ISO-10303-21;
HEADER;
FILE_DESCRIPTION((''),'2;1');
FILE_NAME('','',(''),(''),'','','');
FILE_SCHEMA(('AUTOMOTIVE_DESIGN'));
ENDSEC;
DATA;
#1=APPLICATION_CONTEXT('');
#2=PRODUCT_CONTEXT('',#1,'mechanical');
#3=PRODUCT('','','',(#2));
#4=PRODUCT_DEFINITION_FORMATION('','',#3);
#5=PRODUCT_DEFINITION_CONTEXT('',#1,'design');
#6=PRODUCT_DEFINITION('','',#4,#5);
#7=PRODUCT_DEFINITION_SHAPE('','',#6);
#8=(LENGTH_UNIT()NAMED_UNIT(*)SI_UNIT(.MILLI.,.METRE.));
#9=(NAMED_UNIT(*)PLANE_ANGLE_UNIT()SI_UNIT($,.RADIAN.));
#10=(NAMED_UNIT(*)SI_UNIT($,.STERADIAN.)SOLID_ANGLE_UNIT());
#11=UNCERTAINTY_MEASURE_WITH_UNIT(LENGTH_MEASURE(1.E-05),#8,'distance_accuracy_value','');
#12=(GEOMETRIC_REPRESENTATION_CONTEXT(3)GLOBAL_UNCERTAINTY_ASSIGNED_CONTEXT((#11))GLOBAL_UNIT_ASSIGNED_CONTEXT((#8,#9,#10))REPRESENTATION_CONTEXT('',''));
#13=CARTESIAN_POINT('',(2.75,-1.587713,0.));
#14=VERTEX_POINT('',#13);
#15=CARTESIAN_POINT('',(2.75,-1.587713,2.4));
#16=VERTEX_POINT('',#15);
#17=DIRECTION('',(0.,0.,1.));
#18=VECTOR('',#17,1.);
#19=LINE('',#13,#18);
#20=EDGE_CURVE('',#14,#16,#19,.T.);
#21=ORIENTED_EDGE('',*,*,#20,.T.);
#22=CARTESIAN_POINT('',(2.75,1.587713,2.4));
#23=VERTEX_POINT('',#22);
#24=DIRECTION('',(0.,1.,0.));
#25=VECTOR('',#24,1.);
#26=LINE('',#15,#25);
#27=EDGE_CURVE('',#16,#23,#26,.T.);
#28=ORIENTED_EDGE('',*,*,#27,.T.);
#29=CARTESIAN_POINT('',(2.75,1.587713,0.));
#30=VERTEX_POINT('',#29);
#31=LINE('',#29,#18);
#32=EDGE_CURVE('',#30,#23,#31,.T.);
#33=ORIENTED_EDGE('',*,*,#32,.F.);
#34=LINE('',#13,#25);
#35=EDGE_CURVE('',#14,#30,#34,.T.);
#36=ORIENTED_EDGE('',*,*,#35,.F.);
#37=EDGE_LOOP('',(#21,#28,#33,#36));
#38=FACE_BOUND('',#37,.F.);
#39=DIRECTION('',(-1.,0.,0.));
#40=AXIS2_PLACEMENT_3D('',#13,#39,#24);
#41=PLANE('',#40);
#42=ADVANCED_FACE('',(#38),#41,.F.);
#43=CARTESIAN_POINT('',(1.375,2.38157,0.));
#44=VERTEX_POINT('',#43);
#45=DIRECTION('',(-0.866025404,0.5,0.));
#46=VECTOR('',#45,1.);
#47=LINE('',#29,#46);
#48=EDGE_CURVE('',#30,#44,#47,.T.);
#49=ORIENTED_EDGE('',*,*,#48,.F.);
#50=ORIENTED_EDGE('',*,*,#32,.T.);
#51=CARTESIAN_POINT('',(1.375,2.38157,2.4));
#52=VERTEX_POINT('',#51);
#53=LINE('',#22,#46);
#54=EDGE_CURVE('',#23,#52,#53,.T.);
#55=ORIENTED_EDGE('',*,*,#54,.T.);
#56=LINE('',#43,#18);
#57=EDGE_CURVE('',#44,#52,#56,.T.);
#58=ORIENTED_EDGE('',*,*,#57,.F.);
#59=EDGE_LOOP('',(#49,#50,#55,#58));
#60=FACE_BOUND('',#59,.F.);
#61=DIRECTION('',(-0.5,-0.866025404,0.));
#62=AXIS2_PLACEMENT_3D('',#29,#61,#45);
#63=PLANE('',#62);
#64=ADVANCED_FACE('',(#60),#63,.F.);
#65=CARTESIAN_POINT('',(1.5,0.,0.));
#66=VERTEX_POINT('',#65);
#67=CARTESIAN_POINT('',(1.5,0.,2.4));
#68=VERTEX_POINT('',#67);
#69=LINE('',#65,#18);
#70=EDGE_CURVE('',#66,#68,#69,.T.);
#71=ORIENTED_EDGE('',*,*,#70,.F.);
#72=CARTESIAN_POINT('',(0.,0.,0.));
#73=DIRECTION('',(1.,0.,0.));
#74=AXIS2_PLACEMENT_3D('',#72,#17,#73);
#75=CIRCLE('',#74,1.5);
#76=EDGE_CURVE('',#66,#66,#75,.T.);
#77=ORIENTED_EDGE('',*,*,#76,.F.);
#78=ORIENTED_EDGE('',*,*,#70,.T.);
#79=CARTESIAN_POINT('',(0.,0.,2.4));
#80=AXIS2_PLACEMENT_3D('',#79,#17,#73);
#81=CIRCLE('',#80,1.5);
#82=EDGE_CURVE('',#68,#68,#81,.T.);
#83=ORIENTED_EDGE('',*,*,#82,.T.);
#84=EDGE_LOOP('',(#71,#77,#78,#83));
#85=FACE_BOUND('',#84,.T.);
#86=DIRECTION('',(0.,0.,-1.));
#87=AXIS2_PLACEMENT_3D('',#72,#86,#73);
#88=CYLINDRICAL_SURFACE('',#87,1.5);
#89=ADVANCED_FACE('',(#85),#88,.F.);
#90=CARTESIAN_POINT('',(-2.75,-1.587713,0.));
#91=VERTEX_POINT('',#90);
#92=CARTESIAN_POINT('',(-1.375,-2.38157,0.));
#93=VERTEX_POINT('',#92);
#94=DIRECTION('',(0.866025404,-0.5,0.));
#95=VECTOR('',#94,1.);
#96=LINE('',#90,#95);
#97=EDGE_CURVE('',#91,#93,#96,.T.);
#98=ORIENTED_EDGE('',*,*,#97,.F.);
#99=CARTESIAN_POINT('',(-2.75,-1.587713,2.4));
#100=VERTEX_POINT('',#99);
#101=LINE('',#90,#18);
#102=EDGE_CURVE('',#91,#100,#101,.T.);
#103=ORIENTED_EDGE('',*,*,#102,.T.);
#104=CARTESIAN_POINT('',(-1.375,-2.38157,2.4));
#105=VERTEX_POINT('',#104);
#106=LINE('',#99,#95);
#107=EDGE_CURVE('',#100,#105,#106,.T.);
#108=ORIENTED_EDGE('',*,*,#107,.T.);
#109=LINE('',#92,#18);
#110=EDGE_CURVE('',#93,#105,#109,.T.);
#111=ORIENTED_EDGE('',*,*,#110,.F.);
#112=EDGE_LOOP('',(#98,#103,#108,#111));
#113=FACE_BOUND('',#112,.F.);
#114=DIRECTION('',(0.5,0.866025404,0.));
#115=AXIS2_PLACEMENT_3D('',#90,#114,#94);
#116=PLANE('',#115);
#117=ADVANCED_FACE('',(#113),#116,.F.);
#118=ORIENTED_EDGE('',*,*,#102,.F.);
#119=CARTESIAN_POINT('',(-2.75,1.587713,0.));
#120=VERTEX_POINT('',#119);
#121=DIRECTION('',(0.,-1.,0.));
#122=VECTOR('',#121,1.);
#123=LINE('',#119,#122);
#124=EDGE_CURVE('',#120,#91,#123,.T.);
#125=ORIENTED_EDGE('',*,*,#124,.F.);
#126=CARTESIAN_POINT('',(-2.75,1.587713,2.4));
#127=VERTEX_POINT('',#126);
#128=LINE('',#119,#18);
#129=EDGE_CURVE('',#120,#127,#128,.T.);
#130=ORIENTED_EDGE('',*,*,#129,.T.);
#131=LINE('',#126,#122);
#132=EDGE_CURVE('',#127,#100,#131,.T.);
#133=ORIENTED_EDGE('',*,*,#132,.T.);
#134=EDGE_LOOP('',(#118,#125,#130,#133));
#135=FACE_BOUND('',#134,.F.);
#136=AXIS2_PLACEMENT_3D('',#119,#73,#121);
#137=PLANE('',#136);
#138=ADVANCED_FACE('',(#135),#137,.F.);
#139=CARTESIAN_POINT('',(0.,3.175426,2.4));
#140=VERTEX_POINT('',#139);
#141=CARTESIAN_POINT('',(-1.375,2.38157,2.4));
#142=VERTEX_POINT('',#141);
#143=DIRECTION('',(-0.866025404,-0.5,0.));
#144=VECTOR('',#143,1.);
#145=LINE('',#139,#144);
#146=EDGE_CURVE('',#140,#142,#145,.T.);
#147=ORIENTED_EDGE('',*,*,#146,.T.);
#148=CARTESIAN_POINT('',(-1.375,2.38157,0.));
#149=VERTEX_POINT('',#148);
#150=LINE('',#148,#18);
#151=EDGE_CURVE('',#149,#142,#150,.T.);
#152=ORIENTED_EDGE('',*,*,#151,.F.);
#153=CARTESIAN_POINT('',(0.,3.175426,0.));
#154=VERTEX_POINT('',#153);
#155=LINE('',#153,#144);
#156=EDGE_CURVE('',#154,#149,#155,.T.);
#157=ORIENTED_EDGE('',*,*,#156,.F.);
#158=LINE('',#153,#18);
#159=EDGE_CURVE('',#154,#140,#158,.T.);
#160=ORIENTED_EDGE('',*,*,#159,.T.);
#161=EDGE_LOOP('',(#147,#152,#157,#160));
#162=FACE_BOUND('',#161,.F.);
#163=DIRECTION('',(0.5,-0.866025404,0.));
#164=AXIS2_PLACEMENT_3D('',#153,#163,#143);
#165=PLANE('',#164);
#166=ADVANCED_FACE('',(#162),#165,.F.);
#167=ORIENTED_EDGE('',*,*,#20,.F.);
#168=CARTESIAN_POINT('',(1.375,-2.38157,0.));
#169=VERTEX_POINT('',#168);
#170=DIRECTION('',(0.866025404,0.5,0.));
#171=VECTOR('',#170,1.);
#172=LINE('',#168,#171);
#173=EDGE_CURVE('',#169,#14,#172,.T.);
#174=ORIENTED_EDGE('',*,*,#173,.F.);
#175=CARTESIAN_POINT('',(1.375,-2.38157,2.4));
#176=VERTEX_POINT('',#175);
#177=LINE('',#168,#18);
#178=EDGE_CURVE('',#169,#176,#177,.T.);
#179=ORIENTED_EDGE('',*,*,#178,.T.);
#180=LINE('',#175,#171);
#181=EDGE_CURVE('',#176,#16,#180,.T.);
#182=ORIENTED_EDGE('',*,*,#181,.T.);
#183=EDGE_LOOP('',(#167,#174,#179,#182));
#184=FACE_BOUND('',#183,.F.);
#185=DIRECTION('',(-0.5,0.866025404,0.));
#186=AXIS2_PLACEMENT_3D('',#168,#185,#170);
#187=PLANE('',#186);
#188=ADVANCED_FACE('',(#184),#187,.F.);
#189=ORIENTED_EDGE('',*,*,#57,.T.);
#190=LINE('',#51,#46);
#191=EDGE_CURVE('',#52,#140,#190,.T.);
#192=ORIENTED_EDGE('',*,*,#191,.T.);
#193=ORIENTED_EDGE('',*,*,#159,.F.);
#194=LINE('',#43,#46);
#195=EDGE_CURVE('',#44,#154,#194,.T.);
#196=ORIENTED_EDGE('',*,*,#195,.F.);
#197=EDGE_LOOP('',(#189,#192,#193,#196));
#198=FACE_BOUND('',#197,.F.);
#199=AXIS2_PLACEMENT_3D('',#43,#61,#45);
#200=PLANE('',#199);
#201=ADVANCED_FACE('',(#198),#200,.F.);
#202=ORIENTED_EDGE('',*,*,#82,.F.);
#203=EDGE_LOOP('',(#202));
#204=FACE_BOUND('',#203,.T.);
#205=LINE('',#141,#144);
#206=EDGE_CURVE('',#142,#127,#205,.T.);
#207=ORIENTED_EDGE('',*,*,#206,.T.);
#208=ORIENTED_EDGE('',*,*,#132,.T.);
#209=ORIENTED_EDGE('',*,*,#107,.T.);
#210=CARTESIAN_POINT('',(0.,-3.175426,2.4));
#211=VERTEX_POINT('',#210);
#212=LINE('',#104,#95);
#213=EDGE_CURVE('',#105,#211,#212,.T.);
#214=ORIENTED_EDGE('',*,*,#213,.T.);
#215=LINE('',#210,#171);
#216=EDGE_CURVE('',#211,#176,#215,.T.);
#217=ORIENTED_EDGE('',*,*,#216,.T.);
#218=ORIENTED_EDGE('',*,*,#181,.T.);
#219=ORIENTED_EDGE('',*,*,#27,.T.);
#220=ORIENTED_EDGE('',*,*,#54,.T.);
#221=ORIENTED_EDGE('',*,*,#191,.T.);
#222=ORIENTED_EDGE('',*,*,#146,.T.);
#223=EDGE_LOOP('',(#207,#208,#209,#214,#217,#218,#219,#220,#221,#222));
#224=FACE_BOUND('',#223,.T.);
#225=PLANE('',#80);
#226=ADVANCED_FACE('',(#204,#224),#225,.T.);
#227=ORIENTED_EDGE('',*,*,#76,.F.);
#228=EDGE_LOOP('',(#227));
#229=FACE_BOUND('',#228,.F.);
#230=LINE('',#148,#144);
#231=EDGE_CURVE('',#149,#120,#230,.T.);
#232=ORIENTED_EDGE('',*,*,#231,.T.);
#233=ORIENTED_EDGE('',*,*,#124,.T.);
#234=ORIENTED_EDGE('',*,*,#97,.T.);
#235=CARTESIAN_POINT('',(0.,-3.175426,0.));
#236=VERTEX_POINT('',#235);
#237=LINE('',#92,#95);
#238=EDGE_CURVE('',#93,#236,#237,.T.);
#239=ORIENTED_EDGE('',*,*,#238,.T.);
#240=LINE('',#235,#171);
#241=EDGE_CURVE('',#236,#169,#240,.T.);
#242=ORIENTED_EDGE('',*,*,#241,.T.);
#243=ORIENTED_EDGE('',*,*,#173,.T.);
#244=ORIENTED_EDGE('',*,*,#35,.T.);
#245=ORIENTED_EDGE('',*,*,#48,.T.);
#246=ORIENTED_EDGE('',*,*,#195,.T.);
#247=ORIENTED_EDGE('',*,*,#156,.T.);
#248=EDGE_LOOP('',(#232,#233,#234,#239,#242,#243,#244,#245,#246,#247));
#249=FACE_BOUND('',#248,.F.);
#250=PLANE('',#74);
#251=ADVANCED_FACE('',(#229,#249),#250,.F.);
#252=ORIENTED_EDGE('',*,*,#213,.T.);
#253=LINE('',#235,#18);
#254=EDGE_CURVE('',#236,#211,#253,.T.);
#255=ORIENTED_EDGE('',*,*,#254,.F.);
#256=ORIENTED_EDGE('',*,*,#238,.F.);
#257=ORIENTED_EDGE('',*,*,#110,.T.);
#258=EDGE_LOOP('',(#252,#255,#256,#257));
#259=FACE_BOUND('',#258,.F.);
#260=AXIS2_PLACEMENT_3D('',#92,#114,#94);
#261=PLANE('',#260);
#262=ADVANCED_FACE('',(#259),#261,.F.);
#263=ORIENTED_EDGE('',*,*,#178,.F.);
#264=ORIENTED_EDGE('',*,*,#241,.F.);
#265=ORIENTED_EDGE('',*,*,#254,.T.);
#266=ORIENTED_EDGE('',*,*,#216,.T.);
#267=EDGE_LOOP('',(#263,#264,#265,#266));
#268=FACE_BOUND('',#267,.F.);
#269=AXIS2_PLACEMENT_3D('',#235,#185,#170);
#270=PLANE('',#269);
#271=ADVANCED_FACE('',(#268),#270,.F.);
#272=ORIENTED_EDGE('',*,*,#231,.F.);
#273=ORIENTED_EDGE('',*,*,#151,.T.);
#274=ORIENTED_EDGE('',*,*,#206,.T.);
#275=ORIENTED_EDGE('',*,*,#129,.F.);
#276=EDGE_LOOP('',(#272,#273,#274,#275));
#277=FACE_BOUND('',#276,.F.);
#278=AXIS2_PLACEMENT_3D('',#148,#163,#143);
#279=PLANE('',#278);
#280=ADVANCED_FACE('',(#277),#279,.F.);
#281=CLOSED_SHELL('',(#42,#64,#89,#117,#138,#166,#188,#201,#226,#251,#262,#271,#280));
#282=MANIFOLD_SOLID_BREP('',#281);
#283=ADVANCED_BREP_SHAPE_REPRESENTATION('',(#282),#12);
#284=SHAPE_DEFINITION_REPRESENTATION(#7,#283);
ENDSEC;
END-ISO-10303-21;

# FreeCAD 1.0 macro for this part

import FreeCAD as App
import Part
import Sketcher

V = App.Vector
Q = App.Units.Quantity

doc = App.newDocument("Part")
params = doc.addObject("Spreadsheet::Sheet", "Params")
for row, (alias, value) in enumerate([
    ("sketch1_diameter", "3 mm"),
    ("pad1_length", "2.4 mm"),
], start=1):
    params.set(f"A{row}", alias)
    params.set(f"B{row}", "=" + value)
    params.setAlias(f"B{row}", alias)

body = doc.addObject("PartDesign::Body", "Body")

sketch1 = body.newObject("Sketcher::SketchObject", "Sketch")
sketch1.AttachmentSupport = (doc.getObject("XY_Plane"), [""])
sketch1.MapMode = "FlatFace"
sketch1.addGeometry(Part.LineSegment(V(1.375, -2.38157, 0), V(2.75, -1.587713, 0)), False)
sketch1.addGeometry(Part.LineSegment(V(2.75, -1.587713, 0), V(2.75, 1.587713, 0)), False)
sketch1.addGeometry(Part.LineSegment(V(2.75, 1.587713, 0), V(1.375, 2.38157, 0)), False)
sketch1.addGeometry(Part.LineSegment(V(1.375, 2.38157, 0), V(0, 3.175426, 0)), False)
sketch1.addGeometry(Part.LineSegment(V(0, 3.175426, 0), V(-1.375, 2.38157, 0)), False)
sketch1.addGeometry(Part.LineSegment(V(-1.375, 2.38157, 0), V(-2.75, 1.587713, 0)), False)
sketch1.addGeometry(Part.LineSegment(V(-2.75, 1.587713, 0), V(-2.75, -1.587713, 0)), False)
sketch1.addGeometry(Part.LineSegment(V(-2.75, -1.587713, 0), V(-1.375, -2.38157, 0)), False)
sketch1.addGeometry(Part.LineSegment(V(-1.375, -2.38157, 0), V(0, -3.175426, 0)), False)
sketch1.addGeometry(Part.LineSegment(V(0, -3.175426, 0), V(1.375, -2.38157, 0)), False)
sketch1.addGeometry(Part.Circle(V(0, 0, 0), V(0, 0, 1), 1.5), False)
sketch1.addConstraint(Sketcher.Constraint("Coincident", 0, 2, 1, 1))
sketch1.addConstraint(Sketcher.Constraint("Coincident", 1, 2, 2, 1))
sketch1.addConstraint(Sketcher.Constraint("Coincident", 2, 2, 3, 1))
sketch1.addConstraint(Sketcher.Constraint("Coincident", 3, 2, 4, 1))
sketch1.addConstraint(Sketcher.Constraint("Coincident", 4, 2, 5, 1))
sketch1.addConstraint(Sketcher.Constraint("Coincident", 5, 2, 6, 1))
sketch1.addConstraint(Sketcher.Constraint("Coincident", 6, 2, 7, 1))
sketch1.addConstraint(Sketcher.Constraint("Coincident", 7, 2, 8, 1))
sketch1.addConstraint(Sketcher.Constraint("Coincident", 8, 2, 9, 1))
sketch1.addConstraint(Sketcher.Constraint("Coincident", 9, 2, 0, 1))
sketch1.addConstraint(Sketcher.Constraint("Vertical", 1))
sketch1.addConstraint(Sketcher.Constraint("Vertical", 6))
sketch1.addConstraint(Sketcher.Constraint("Coincident", 10, 3, -1, 1))
sketch1.addConstraint(Sketcher.Constraint("Symmetric", 0, 2, 5, 2, -1, 1))
sketch1.addConstraint(Sketcher.Constraint("Symmetric", 2, 2, 7, 2, -1, 1))
sketch1.addConstraint(Sketcher.Constraint("Symmetric", 3, 2, 8, 2, -1, 1))
sketch1.addConstraint(Sketcher.Constraint("Symmetric", 4, 2, 9, 2, -1, 1))
sketch1.addConstraint(Sketcher.Constraint("Symmetric", 2, 2, 4, 2, -2))
sketch1.addConstraint(Sketcher.Constraint("PointOnObject", 3, 2, -2))
sketch1.addConstraint(Sketcher.Constraint("Parallel", 2, 3))
sketch1.addConstraint(Sketcher.Constraint("Parallel", 0, 4))
sketch1.addConstraint(Sketcher.Constraint("Parallel", 3, 7))
sketch1.addConstraint(Sketcher.Constraint("Equal", 2, 3))
sketch1.addConstraint(Sketcher.Constraint("Diameter", 10, 3.0))
sketch1.addConstraint(Sketcher.Constraint("Angle", 0, Q("30 deg")))
sketch1.addConstraint(Sketcher.Constraint("DistanceX", 5, 2, 1, 2, 5.5))
sketch1.addConstraint(Sketcher.Constraint("DistanceY", 1, 1, 1, 2, 3.175426))
sketch1.setExpression("Constraints[23]", "Params.sketch1_diameter")
pad1 = body.newObject("PartDesign::Pad", "Pad")
pad1.Profile = sketch1
pad1.setExpression("Length", "Params.pad1_length")

doc.recompute()
